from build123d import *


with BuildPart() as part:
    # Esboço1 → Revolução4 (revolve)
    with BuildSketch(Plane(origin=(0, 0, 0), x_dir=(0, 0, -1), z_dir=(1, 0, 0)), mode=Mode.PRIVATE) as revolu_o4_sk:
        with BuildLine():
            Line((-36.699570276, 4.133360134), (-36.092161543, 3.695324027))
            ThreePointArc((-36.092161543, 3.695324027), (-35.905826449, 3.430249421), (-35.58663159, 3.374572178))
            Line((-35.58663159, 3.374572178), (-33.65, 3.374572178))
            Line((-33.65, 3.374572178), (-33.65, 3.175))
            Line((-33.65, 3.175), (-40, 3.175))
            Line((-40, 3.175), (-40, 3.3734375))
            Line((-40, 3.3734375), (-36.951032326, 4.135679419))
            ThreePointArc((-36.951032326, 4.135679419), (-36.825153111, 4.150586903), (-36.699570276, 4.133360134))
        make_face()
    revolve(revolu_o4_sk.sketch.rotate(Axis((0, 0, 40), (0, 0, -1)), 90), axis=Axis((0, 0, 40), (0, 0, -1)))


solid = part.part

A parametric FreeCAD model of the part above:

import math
import FreeCAD as App
import Part
import Sketcher

doc = App.newDocument("Part")
body = doc.addObject("PartDesign::Body", "Body")

sketch1 = doc.addObject("Sketcher::SketchObject", "Sketch")
body.addObject(sketch1)
sketch1.AttachmentSupport = (doc.YZ_Plane, [""])
sketch1.MapMode = "FlatFace"
sketch1.addGeometry(Part.LineSegment(App.Vector(3.695324, 36.092162, 0), App.Vector(4.13336, 36.69957, 0)), False)
sketch1.addGeometry(Part.ArcOfCircle(Part.Circle(App.Vector(3.650608, 36.829765, 0), App.Vector(0, 0, 1), 0.5), math.radians(-15.093114), math.radians(14.036243)), False)
sketch1.addGeometry(Part.LineSegment(App.Vector(4.135679, 36.951032, 0), App.Vector(3.373438, 40, 0)), False)
sketch1.addGeometry(Part.LineSegment(App.Vector(3.373438, 40, 0), App.Vector(3.175, 40, 0)), False)
sketch1.addGeometry(Part.LineSegment(App.Vector(3.175, 40, 0), App.Vector(3.175, 33.65, 0)), False)
sketch1.addGeometry(Part.LineSegment(App.Vector(3.175, 33.65, 0), App.Vector(3.374572, 33.65, 0)), False)
sketch1.addGeometry(Part.LineSegment(App.Vector(3.374572, 33.65, 0), App.Vector(3.374572, 35.586632, 0)), False)
sketch1.addGeometry(Part.ArcOfCircle(Part.Circle(App.Vector(3.787713, 35.679021, 0), App.Vector(0, 0, 1), 0.423345), math.radians(102.605431), math.radians(192.605431)), False)
sketch1.addConstraint(Sketcher.Constraint("Coincident", 0, 2, 1, 1))
sketch1.addConstraint(Sketcher.Constraint("Tangent", 1, 2, 2, 1))
sketch1.addConstraint(Sketcher.Constraint("Coincident", 2, 2, 3, 1))
sketch1.addConstraint(Sketcher.Constraint("Coincident", 3, 2, 4, 1))
sketch1.addConstraint(Sketcher.Constraint("Coincident", 4, 2, 5, 1))
sketch1.addConstraint(Sketcher.Constraint("Coincident", 5, 2, 6, 1))
sketch1.addConstraint(Sketcher.Constraint("Coincident", 6, 2, 7, 2))
sketch1.addConstraint(Sketcher.Constraint("Coincident", 7, 1, 0, 1))
sketch1.addConstraint(Sketcher.Constraint("Horizontal", 3))
sketch1.addConstraint(Sketcher.Constraint("Vertical", 4))
sketch1.addConstraint(Sketcher.Constraint("Horizontal", 5))
sketch1.addConstraint(Sketcher.Constraint("Vertical", 6))
sketch1.addConstraint(Sketcher.Constraint("Radius", 1, 0.5))
sketch1.addConstraint(Sketcher.Constraint("DistanceY", -1, 1, 2, 2, 40.0))
sketch1.addConstraint(Sketcher.Constraint("DistanceY", 4, 2, 4, 1, 6.35))
sketch1.addConstraint(Sketcher.Constraint("DistanceX", -1, 1, 3, 2, 3.175))
sketch1.addConstraint(Sketcher.Constraint("Radius", 7, 0.423345))
sketch1.addConstraint(Sketcher.Constraint("DistanceY", 6, 1, 6, 2, 1.936632))
sketch1.addConstraint(Sketcher.Constraint("DistanceY", 6, 2, 1, 2, 1.364401))
sketch1.addConstraint(Sketcher.Constraint("Distance", 0, 0.74888))
sketch1.addConstraint(Sketcher.Constraint("DistanceX", 3, 2, 3, 1, 0.198438))
sketch1.addConstraint(Sketcher.Constraint("DistanceX", 5, 1, 5, 2, 0.199572))
sketch1.addConstraint(Sketcher.Constraint("DistanceX", -1, 1, 1, 3, 3.650608))
sketch1.addConstraint(Sketcher.Constraint("DistanceY", -1, 1, 7, 3, 35.679021))
sketch1.addConstraint(Sketcher.Constraint("DistanceX", -1, 1, 0, 2, 4.13336))
revolution = doc.addObject("PartDesign::Revolution", "Revolution")
body.addObject(revolution)
revolution.Profile = sketch1
revolution.ReferenceAxis = (sketch1, ["V_Axis"])
revolution.Angle = 360

doc.recompute()
